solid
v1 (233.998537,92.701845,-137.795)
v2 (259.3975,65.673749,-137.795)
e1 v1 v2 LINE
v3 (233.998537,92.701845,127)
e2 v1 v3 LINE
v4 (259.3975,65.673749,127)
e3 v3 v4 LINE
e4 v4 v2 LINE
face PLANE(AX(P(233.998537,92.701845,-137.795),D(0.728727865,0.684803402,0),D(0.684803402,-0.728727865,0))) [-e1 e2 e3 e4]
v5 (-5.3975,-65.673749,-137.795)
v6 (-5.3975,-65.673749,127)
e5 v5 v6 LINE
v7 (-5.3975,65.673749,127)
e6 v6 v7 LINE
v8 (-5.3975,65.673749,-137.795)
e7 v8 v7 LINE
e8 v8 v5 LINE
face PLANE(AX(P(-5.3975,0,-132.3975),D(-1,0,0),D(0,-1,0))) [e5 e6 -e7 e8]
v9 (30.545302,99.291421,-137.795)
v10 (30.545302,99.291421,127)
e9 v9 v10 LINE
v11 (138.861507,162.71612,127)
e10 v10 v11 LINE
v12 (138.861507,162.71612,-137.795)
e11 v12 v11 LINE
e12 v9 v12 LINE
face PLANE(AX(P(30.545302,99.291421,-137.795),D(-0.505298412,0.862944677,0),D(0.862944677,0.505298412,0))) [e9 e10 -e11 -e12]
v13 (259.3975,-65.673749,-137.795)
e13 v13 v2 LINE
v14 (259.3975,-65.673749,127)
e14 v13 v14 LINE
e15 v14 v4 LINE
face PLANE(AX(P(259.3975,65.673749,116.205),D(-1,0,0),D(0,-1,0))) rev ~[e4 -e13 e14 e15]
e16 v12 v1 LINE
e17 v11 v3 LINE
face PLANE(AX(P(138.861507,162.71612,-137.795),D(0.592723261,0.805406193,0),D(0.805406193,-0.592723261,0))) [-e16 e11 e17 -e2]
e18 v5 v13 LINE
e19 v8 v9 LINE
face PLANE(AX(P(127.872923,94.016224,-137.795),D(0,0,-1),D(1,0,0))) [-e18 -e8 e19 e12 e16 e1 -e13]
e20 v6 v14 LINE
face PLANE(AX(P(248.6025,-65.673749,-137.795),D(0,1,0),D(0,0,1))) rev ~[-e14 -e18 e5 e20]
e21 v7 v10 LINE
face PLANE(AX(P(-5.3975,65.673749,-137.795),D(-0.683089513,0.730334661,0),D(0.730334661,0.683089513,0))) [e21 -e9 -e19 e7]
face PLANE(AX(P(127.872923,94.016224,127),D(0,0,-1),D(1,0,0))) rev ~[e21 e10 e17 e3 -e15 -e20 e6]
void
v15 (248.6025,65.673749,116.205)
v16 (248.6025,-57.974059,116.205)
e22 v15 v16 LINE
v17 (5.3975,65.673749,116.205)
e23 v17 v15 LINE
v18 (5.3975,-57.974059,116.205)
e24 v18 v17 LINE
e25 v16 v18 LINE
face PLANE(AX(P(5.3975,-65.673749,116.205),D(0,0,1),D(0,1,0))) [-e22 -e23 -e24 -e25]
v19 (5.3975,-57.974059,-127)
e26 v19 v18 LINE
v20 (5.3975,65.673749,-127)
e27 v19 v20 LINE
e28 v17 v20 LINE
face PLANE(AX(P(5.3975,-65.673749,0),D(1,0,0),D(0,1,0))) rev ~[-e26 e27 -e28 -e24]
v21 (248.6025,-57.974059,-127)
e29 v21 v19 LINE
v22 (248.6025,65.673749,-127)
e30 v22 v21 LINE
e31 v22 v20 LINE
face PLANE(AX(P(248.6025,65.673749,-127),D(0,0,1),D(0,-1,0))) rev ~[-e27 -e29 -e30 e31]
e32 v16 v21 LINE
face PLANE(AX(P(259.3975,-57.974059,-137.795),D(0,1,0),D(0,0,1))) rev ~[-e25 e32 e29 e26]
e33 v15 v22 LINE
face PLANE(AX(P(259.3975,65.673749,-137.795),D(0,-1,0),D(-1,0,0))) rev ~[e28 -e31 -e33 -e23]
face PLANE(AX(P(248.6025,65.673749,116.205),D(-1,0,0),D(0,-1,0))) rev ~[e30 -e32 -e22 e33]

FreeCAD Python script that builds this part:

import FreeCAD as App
import Part
import Sketcher

V = App.Vector
Q = App.Units.Quantity

doc = App.newDocument("Part")
body = doc.addObject("PartDesign::Body", "Body")

# Sketch on XY plane
sketch1 = body.newObject("Sketcher::SketchObject", "Sketch")
sketch1.AttachmentSupport = (doc.getObject("XY_Plane"), [""])
sketch1.MapMode = "FlatFace"
sketch1.addGeometry([
    Part.LineSegment(V(-5, 66, 0), V(-5, -66, 0)),
    Part.LineSegment(V(-5, -66, 0), V(5, -66, 0)),
    Part.LineSegment(V(5, -66, 0), V(5, 66, 0)),
    Part.LineSegment(V(5, 66, 0), V(-5, 66, 0)),
], False)
sketch1.addConstraint([
    Sketcher.Constraint("Coincident", 0, 2, 1, 1),
    Sketcher.Constraint("Coincident", 1, 2, 2, 1),
    Sketcher.Constraint("Coincident", 2, 2, 3, 1),
    Sketcher.Constraint("Coincident", 3, 2, 0, 1),
    Sketcher.Constraint("Vertical", 0),
    Sketcher.Constraint("Horizontal", 1),
    Sketcher.Constraint("Vertical", 2),
    Sketcher.Constraint("Horizontal", 3),
    Sketcher.Constraint("Symmetric", 0, 2, 2, 2, -1, 1),
    Sketcher.Constraint("DistanceX", 1, 1, 1, 2, Q("0.425 in")),
    Sketcher.Constraint("DistanceY", 0, 2, 0, 1, Q("131.347498 mm")),
])
pad1 = body.newObject("PartDesign::Pad", "Pad")
pad1.Profile = sketch1
pad1.Type = "TwoLengths"
pad1.Length = Q("5 in")
pad1.Length2 = Q("5 in")

# Sketch on YZ plane
sketch2 = body.newObject("Sketcher::SketchObject", "Sketch001")
sketch2.AttachmentSupport = (doc.getObject("YZ_Plane"), [""])
sketch2.MapMode = "FlatFace"
sketch2.AttachmentOffset = App.Placement(V(0, 0, 0.2125 * 25.4), App.Rotation())
sketch2.addGeometry([
    Part.LineSegment(V(-66, 127, 0), V(-66, 116, 0)),
    Part.LineSegment(V(-66, 116, 0), V(66, 116, 0)),
    Part.LineSegment(V(66, 116, 0), V(66, 127, 0)),
    Part.LineSegment(V(66, 127, 0), V(-66, 127, 0)),
], False)
sketch2.addConstraint([
    Sketcher.Constraint("Coincident", 0, 2, 1, 1),
    Sketcher.Constraint("Coincident", 1, 2, 2, 1),
    Sketcher.Constraint("Coincident", 2, 2, 3, 1),
    Sketcher.Constraint("Coincident", 3, 2, 0, 1),
    Sketcher.Constraint("Vertical", 0),
    Sketcher.Constraint("Horizontal", 1),
    Sketcher.Constraint("Vertical", 2),
    Sketcher.Constraint("Horizontal", 3),
    Sketcher.Constraint("DistanceY", -1, 1, 2, 2, Q("5 in")),
    Sketcher.Constraint("DistanceY", 0, 2, 0, 1, Q("0.425 in")),
    Sketcher.Constraint("DistanceX", 1, 1, 1, 2, Q("131.347498 mm")),
    Sketcher.Constraint("DistanceX", 0, 2, -1, 1, Q("65.673749 mm")),
])
pad2 = body.newObject("PartDesign::Pad", "Pad001")
pad2.Profile = sketch2
pad2.Length = Q("10 in")

# Sketch on XY plane
sketch3 = body.newObject("Sketcher::SketchObject", "Sketch002")
sketch3.AttachmentSupport = (doc.getObject("XY_Plane"), [""])
sketch3.MapMode = "FlatFace"
sketch3.AttachmentOffset = App.Placement(V(0, 0, 4.575 * 25.4), App.Rotation())
sketch3.addGeometry([
    Part.LineSegment(V(249, -66, 0), V(249, 66, 0)),
    Part.LineSegment(V(249, 66, 0), V(259, 66, 0)),
    Part.LineSegment(V(259, 66, 0), V(259, -66, 0)),
    Part.LineSegment(V(259, -66, 0), V(249, -66, 0)),
], False)
sketch3.addConstraint([
    Sketcher.Constraint("Coincident", 0, 2, 1, 1),
    Sketcher.Constraint("Coincident", 1, 2, 2, 1),
    Sketcher.Constraint("Coincident", 2, 2, 3, 1),
    Sketcher.Constraint("Coincident", 3, 2, 0, 1),
    Sketcher.Constraint("Vertical", 0),
    Sketcher.Constraint("Horizontal", 1),
    Sketcher.Constraint("Vertical", 2),
    Sketcher.Constraint("Horizontal", 3),
    Sketcher.Constraint("DistanceX", 1, 1, 1, 2, Q("0.425 in")),
    Sketcher.Constraint("DistanceY", 0, 1, 0, 2, Q("131.347498 mm")),
    Sketcher.Constraint("DistanceX", -1, 1, 0, 2, Q("9.7875 in")),
    Sketcher.Constraint("DistanceY", -1, 1, 0, 2, Q("65.673749 mm")),
])
pad3 = body.newObject("PartDesign::Pad", "Pad002")
pad3.Profile = sketch3
pad3.Length = Q("10 in")
pad3.Reversed = True

# Sketch on YZ plane
sketch4 = body.newObject("Sketcher::SketchObject", "Sketch003")
sketch4.AttachmentSupport = (doc.getObject("YZ_Plane"), [""])
sketch4.MapMode = "FlatFace"
sketch4.AttachmentOffset = App.Placement(V(0, 0, 9.7875 * 25.4), App.Rotation())
sketch4.addGeometry([
    Part.LineSegment(V(66, -127, 0), V(66, -138, 0)),
    Part.LineSegment(V(66, -138, 0), V(-66, -138, 0)),
    Part.LineSegment(V(-66, -138, 0), V(-66, -127, 0)),
    Part.LineSegment(V(-66, -127, 0), V(66, -127, 0)),
], False)
sketch4.addConstraint([
    Sketcher.Constraint("Coincident", 0, 2, 1, 1),
    Sketcher.Constraint("Coincident", 1, 2, 2, 1),
    Sketcher.Constraint("Coincident", 2, 2, 3, 1),
    Sketcher.Constraint("Coincident", 3, 2, 0, 1),
    Sketcher.Constraint("Vertical", 0),
    Sketcher.Constraint("Horizontal", 1),
    Sketcher.Constraint("Vertical", 2),
    Sketcher.Constraint("Horizontal", 3),
    Sketcher.Constraint("DistanceY", 2, 2, -1, 1, Q("5 in")),
    Sketcher.Constraint("DistanceY", 0, 2, 0, 1, Q("0.425 in")),
    Sketcher.Constraint("DistanceX", 1, 2, 1, 1, Q("131.347498 mm")),
    Sketcher.Constraint("DistanceX", -1, 1, 0, 2, Q("65.673749 mm")),
])
pad4 = body.newObject("PartDesign::Pad", "Pad003")
pad4.Profile = sketch4
pad4.Length = Q("10 in")
pad4.Reversed = True

# Sketch on YZ plane
sketch5 = body.newObject("Sketcher::SketchObject", "Sketch004")
sketch5.AttachmentSupport = (doc.getObject("YZ_Plane"), [""])
sketch5.MapMode = "FlatFace"
sketch5.AttachmentOffset = App.Placement(V(0, 0, 10.2125 * 25.4), App.Rotation())
sketch5.addGeometry([
    Part.LineSegment(V(-66, 127, 0), V(-66, -138, 0)),
    Part.LineSegment(V(-66, -138, 0), V(-58, -138, 0)),
    Part.LineSegment(V(-58, -138, 0), V(-58, 127, 0)),
    Part.LineSegment(V(-58, 127, 0), V(-66, 127, 0)),
], False)
sketch5.addConstraint([
    Sketcher.Constraint("Coincident", 0, 2, 1, 1),
    Sketcher.Constraint("Coincident", 1, 2, 2, 1),
    Sketcher.Constraint("Coincident", 2, 2, 3, 1),
    Sketcher.Constraint("Coincident", 3, 2, 0, 1),
    Sketcher.Constraint("Vertical", 0),
    Sketcher.Constraint("Horizontal", 1),
    Sketcher.Constraint("Vertical", 2),
    Sketcher.Constraint("Horizontal", 3),
    Sketcher.Constraint("DistanceY", -1, 1, 2, 2, Q("5 in")),
    Sketcher.Constraint("DistanceY", 0, 2, 0, 1, Q("10.425 in")),
    Sketcher.Constraint("DistanceX", 1, 1, 1, 2, Q("7.69969 mm")),
    Sketcher.Constraint("DistanceX", 0, 2, -1, 1, Q("65.673749 mm")),
])
pad5 = body.newObject("PartDesign::Pad", "Pad004")
pad5.Profile = sketch5
pad5.Length = Q("10 in")
pad5.Reversed = True

# Sketch on XY plane
sketch6 = body.newObject("Sketcher::SketchObject", "Sketch005")
sketch6.AttachmentSupport = (doc.getObject("XY_Plane"), [""])
sketch6.MapMode = "FlatFace"
sketch6.AttachmentOffset = App.Placement(V(0, 0, -5.425 * 25.4), App.Rotation())
sketch6.addGeometry([
    Part.LineSegment(V(234, 93, 0), V(259, 66, 0)),  # 0
    Part.LineSegment(V(259, 66, 0), V(-5, 66, 0)),  # 1
    Part.LineSegment(V(-5, 66, 0), V(31, 99, 0)),  # 2
    Part.LineSegment(V(31, 99, 0), V(139, 163, 0)),  # 3
    Part.LineSegment(V(139, 163, 0), V(234, 93, 0)),  # 4
], False)
sketch6.addConstraint([
    Sketcher.Constraint("Coincident", 0, 2, 1, 1),
    Sketcher.Constraint("Coincident", 1, 2, 2, 1),
    Sketcher.Constraint("Coincident", 2, 2, 3, 1),
    Sketcher.Constraint("Coincident", 3, 2, 4, 1),
    Sketcher.Constraint("Coincident", 4, 2, 0, 1),
    Sketcher.Constraint("Horizontal", 1),
    Sketcher.Constraint("DistanceX", 1, 2, 1, 1, Q("10.425 in")),
    Sketcher.Constraint("DistanceX", -1, 1, 0, 2, Q("10.2125 in")),
    Sketcher.Constraint("DistanceX", -1, 1, 2, 2, Q("30.545302 mm")),
    Sketcher.Constraint("DistanceY", 2, 2, 3, 2, Q("63.424699 mm")),
    Sketcher.Constraint("DistanceY", -1, 1, 0, 2, Q("65.673749 mm")),
    Sketcher.Constraint("DistanceY", -1, 1, 2, 2, Q("99.291421 mm")),
    Sketcher.Constraint("DistanceX", 3, 2, 4, 2, Q("95.13703 mm")),
    Sketcher.Constraint("Distance", 0, Q("37.089423 mm")),
    Sketcher.Constraint("Distance", 3, Q("125.519292 mm")),
])
pad6 = body.newObject("PartDesign::Pad", "Pad005")
pad6.Profile = sketch6
pad6.Length = Q("10.425 in")

doc.recompute()
